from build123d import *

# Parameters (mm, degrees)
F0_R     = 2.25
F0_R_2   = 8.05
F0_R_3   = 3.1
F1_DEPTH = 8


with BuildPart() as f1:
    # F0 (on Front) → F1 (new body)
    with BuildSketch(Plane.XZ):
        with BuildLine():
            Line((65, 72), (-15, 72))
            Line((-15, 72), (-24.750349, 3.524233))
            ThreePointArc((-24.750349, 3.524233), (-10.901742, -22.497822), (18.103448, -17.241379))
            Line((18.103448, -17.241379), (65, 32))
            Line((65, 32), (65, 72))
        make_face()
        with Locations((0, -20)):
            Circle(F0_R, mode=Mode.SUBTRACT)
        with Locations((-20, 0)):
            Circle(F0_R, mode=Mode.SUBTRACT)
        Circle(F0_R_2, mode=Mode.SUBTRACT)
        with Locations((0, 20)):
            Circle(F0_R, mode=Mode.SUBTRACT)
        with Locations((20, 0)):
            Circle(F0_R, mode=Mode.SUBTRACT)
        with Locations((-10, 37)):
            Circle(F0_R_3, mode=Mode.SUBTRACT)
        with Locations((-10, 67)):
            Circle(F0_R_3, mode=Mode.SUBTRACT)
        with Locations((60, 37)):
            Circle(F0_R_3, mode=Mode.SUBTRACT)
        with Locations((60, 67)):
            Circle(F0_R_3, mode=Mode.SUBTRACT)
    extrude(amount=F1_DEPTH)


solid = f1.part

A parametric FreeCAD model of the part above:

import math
import FreeCAD as App
import Part
import Sketcher

V = App.Vector

doc = App.newDocument("Part")
params = doc.addObject("Spreadsheet::Sheet", "Params")
for row, (alias, value) in enumerate([
    ("sketch1_radius", "25 mm"),
    ("sketch1_diameter", "4.5 mm"),
    ("sketch1_diameter2", "16.1 mm"),
    ("sketch1_diameter3", "6.2 mm"),
    ("sketch1_width", "80 mm"),
    ("pad1_length", "8 mm"),
], start=1):
    params.set(f"A{row}", alias)
    params.set(f"B{row}", "=" + value)
    params.setAlias(f"B{row}", alias)

body = doc.addObject("PartDesign::Body", "Body")

sketch1 = body.newObject("Sketcher::SketchObject", "Sketch")
sketch1.AttachmentSupport = (doc.getObject("XZ_Plane"), [""])
sketch1.MapMode = "FlatFace"
sketch1.addGeometry([
    Part.LineSegment(V(65, 72, 0), V(-15, 72, 0)),
    Part.LineSegment(V(-15, 72, 0), V(-24.8, 3.5, 0)),
    Part.ArcOfCircle(Part.Circle(V(0, 0, 0), V(0, 0, 1), 25), math.radians(172), math.radians(316)),
    Part.LineSegment(V(18.1, -17.2, 0), V(65, 32, 0)),
    Part.LineSegment(V(65, 32, 0), V(65, 72, 0)),
    Part.Circle(V(-20, 0, 0), V(0, 0, 1), 2.2),
    Part.Circle(V(0, -20, 0), V(0, 0, 1), 2.2),
    Part.Circle(V(0, 0, 0), V(0, 0, 1), 8.1),
    Part.Circle(V(20, 0, 0), V(0, 0, 1), 2.2),
    Part.Circle(V(0, 20, 0), V(0, 0, 1), 2.2),
    Part.Circle(V(-10, 37, 0), V(0, 0, 1), 3.1),
    Part.Circle(V(-10, 67, 0), V(0, 0, 1), 3.1),
    Part.Circle(V(60, 37, 0), V(0, 0, 1), 3.1),
    Part.Circle(V(60, 67, 0), V(0, 0, 1), 3.1),
], False)
sketch1.addConstraint([
    Sketcher.Constraint("Coincident", 0, 2, 1, 1),
    Sketcher.Constraint("Tangent", 1, 2, 2, 1),
    Sketcher.Constraint("Tangent", 2, 2, 3, 1),
    Sketcher.Constraint("Coincident", 3, 2, 4, 1),
    Sketcher.Constraint("Coincident", 4, 2, 0, 1),
    Sketcher.Constraint("Horizontal", 0),
    Sketcher.Constraint("Vertical", 4),
    Sketcher.Constraint("Coincident", 2, 3, -1, 1),
    Sketcher.Constraint("Coincident", 7, 3, -1, 1),
    Sketcher.Constraint("Equal", 5, 6),
    Sketcher.Constraint("Equal", 6, 8),
    Sketcher.Constraint("Equal", 8, 9),
    Sketcher.Constraint("Equal", 10, 11),
    Sketcher.Constraint("Equal", 11, 12),
    Sketcher.Constraint("Equal", 12, 13),
    Sketcher.Constraint("Symmetric", 5, 3, 8, 3, -1, 1),
    Sketcher.Constraint("Symmetric", 6, 3, 9, 3, -1, 1),
    Sketcher.Constraint("PointOnObject", 5, 3, -1),
    Sketcher.Constraint("PointOnObject", 6, 3, -2),
    Sketcher.Constraint("Horizontal", 10, 3, 12, 3),
    Sketcher.Constraint("Horizontal", 11, 3, 13, 3),
    Sketcher.Constraint("Vertical", 10, 3, 11, 3),
    Sketcher.Constraint("Vertical", 12, 3, 13, 3),
    Sketcher.Constraint("Radius", 2, 25.0),
    Sketcher.Constraint("Diameter", 5, 4.5),
    Sketcher.Constraint("Diameter", 7, 16.1),
    Sketcher.Constraint("Diameter", 10, 6.2),
    Sketcher.Constraint("DistanceX", 0, 2, 0, 1, 80.0),
    Sketcher.Constraint("DistanceY", 4, 1, 4, 2, 40.0),
    Sketcher.Constraint("Distance", 3, 68.0),
    Sketcher.Constraint("DistanceX", 5, 3, -1, 1, 20.0),
    Sketcher.Constraint("DistanceY", 6, 3, -1, 1, 20.0),
    Sketcher.Constraint("DistanceX", 10, 3, -1, 1, 10.0),
    Sketcher.Constraint("DistanceY", -1, 1, 10, 3, 37.0),
    Sketcher.Constraint("DistanceY", -1, 1, 11, 3, 67.0),
    Sketcher.Constraint("DistanceX", -1, 1, 12, 3, 60.0),
    Sketcher.Constraint("DistanceX", 0, 2, -1, 1, 15.0),
])
sketch1.setExpression("Constraints[23]", "Params.sketch1_radius")
sketch1.setExpression("Constraints[24]", "Params.sketch1_diameter")
sketch1.setExpression("Constraints[25]", "Params.sketch1_diameter2")
sketch1.setExpression("Constraints[26]", "Params.sketch1_diameter3")
sketch1.setExpression("Constraints[27]", "Params.sketch1_width")
pad1 = body.newObject("PartDesign::Pad", "Pad")
pad1.Profile = sketch1
pad1.setExpression("Length", "Params.pad1_length")

doc.recompute()
